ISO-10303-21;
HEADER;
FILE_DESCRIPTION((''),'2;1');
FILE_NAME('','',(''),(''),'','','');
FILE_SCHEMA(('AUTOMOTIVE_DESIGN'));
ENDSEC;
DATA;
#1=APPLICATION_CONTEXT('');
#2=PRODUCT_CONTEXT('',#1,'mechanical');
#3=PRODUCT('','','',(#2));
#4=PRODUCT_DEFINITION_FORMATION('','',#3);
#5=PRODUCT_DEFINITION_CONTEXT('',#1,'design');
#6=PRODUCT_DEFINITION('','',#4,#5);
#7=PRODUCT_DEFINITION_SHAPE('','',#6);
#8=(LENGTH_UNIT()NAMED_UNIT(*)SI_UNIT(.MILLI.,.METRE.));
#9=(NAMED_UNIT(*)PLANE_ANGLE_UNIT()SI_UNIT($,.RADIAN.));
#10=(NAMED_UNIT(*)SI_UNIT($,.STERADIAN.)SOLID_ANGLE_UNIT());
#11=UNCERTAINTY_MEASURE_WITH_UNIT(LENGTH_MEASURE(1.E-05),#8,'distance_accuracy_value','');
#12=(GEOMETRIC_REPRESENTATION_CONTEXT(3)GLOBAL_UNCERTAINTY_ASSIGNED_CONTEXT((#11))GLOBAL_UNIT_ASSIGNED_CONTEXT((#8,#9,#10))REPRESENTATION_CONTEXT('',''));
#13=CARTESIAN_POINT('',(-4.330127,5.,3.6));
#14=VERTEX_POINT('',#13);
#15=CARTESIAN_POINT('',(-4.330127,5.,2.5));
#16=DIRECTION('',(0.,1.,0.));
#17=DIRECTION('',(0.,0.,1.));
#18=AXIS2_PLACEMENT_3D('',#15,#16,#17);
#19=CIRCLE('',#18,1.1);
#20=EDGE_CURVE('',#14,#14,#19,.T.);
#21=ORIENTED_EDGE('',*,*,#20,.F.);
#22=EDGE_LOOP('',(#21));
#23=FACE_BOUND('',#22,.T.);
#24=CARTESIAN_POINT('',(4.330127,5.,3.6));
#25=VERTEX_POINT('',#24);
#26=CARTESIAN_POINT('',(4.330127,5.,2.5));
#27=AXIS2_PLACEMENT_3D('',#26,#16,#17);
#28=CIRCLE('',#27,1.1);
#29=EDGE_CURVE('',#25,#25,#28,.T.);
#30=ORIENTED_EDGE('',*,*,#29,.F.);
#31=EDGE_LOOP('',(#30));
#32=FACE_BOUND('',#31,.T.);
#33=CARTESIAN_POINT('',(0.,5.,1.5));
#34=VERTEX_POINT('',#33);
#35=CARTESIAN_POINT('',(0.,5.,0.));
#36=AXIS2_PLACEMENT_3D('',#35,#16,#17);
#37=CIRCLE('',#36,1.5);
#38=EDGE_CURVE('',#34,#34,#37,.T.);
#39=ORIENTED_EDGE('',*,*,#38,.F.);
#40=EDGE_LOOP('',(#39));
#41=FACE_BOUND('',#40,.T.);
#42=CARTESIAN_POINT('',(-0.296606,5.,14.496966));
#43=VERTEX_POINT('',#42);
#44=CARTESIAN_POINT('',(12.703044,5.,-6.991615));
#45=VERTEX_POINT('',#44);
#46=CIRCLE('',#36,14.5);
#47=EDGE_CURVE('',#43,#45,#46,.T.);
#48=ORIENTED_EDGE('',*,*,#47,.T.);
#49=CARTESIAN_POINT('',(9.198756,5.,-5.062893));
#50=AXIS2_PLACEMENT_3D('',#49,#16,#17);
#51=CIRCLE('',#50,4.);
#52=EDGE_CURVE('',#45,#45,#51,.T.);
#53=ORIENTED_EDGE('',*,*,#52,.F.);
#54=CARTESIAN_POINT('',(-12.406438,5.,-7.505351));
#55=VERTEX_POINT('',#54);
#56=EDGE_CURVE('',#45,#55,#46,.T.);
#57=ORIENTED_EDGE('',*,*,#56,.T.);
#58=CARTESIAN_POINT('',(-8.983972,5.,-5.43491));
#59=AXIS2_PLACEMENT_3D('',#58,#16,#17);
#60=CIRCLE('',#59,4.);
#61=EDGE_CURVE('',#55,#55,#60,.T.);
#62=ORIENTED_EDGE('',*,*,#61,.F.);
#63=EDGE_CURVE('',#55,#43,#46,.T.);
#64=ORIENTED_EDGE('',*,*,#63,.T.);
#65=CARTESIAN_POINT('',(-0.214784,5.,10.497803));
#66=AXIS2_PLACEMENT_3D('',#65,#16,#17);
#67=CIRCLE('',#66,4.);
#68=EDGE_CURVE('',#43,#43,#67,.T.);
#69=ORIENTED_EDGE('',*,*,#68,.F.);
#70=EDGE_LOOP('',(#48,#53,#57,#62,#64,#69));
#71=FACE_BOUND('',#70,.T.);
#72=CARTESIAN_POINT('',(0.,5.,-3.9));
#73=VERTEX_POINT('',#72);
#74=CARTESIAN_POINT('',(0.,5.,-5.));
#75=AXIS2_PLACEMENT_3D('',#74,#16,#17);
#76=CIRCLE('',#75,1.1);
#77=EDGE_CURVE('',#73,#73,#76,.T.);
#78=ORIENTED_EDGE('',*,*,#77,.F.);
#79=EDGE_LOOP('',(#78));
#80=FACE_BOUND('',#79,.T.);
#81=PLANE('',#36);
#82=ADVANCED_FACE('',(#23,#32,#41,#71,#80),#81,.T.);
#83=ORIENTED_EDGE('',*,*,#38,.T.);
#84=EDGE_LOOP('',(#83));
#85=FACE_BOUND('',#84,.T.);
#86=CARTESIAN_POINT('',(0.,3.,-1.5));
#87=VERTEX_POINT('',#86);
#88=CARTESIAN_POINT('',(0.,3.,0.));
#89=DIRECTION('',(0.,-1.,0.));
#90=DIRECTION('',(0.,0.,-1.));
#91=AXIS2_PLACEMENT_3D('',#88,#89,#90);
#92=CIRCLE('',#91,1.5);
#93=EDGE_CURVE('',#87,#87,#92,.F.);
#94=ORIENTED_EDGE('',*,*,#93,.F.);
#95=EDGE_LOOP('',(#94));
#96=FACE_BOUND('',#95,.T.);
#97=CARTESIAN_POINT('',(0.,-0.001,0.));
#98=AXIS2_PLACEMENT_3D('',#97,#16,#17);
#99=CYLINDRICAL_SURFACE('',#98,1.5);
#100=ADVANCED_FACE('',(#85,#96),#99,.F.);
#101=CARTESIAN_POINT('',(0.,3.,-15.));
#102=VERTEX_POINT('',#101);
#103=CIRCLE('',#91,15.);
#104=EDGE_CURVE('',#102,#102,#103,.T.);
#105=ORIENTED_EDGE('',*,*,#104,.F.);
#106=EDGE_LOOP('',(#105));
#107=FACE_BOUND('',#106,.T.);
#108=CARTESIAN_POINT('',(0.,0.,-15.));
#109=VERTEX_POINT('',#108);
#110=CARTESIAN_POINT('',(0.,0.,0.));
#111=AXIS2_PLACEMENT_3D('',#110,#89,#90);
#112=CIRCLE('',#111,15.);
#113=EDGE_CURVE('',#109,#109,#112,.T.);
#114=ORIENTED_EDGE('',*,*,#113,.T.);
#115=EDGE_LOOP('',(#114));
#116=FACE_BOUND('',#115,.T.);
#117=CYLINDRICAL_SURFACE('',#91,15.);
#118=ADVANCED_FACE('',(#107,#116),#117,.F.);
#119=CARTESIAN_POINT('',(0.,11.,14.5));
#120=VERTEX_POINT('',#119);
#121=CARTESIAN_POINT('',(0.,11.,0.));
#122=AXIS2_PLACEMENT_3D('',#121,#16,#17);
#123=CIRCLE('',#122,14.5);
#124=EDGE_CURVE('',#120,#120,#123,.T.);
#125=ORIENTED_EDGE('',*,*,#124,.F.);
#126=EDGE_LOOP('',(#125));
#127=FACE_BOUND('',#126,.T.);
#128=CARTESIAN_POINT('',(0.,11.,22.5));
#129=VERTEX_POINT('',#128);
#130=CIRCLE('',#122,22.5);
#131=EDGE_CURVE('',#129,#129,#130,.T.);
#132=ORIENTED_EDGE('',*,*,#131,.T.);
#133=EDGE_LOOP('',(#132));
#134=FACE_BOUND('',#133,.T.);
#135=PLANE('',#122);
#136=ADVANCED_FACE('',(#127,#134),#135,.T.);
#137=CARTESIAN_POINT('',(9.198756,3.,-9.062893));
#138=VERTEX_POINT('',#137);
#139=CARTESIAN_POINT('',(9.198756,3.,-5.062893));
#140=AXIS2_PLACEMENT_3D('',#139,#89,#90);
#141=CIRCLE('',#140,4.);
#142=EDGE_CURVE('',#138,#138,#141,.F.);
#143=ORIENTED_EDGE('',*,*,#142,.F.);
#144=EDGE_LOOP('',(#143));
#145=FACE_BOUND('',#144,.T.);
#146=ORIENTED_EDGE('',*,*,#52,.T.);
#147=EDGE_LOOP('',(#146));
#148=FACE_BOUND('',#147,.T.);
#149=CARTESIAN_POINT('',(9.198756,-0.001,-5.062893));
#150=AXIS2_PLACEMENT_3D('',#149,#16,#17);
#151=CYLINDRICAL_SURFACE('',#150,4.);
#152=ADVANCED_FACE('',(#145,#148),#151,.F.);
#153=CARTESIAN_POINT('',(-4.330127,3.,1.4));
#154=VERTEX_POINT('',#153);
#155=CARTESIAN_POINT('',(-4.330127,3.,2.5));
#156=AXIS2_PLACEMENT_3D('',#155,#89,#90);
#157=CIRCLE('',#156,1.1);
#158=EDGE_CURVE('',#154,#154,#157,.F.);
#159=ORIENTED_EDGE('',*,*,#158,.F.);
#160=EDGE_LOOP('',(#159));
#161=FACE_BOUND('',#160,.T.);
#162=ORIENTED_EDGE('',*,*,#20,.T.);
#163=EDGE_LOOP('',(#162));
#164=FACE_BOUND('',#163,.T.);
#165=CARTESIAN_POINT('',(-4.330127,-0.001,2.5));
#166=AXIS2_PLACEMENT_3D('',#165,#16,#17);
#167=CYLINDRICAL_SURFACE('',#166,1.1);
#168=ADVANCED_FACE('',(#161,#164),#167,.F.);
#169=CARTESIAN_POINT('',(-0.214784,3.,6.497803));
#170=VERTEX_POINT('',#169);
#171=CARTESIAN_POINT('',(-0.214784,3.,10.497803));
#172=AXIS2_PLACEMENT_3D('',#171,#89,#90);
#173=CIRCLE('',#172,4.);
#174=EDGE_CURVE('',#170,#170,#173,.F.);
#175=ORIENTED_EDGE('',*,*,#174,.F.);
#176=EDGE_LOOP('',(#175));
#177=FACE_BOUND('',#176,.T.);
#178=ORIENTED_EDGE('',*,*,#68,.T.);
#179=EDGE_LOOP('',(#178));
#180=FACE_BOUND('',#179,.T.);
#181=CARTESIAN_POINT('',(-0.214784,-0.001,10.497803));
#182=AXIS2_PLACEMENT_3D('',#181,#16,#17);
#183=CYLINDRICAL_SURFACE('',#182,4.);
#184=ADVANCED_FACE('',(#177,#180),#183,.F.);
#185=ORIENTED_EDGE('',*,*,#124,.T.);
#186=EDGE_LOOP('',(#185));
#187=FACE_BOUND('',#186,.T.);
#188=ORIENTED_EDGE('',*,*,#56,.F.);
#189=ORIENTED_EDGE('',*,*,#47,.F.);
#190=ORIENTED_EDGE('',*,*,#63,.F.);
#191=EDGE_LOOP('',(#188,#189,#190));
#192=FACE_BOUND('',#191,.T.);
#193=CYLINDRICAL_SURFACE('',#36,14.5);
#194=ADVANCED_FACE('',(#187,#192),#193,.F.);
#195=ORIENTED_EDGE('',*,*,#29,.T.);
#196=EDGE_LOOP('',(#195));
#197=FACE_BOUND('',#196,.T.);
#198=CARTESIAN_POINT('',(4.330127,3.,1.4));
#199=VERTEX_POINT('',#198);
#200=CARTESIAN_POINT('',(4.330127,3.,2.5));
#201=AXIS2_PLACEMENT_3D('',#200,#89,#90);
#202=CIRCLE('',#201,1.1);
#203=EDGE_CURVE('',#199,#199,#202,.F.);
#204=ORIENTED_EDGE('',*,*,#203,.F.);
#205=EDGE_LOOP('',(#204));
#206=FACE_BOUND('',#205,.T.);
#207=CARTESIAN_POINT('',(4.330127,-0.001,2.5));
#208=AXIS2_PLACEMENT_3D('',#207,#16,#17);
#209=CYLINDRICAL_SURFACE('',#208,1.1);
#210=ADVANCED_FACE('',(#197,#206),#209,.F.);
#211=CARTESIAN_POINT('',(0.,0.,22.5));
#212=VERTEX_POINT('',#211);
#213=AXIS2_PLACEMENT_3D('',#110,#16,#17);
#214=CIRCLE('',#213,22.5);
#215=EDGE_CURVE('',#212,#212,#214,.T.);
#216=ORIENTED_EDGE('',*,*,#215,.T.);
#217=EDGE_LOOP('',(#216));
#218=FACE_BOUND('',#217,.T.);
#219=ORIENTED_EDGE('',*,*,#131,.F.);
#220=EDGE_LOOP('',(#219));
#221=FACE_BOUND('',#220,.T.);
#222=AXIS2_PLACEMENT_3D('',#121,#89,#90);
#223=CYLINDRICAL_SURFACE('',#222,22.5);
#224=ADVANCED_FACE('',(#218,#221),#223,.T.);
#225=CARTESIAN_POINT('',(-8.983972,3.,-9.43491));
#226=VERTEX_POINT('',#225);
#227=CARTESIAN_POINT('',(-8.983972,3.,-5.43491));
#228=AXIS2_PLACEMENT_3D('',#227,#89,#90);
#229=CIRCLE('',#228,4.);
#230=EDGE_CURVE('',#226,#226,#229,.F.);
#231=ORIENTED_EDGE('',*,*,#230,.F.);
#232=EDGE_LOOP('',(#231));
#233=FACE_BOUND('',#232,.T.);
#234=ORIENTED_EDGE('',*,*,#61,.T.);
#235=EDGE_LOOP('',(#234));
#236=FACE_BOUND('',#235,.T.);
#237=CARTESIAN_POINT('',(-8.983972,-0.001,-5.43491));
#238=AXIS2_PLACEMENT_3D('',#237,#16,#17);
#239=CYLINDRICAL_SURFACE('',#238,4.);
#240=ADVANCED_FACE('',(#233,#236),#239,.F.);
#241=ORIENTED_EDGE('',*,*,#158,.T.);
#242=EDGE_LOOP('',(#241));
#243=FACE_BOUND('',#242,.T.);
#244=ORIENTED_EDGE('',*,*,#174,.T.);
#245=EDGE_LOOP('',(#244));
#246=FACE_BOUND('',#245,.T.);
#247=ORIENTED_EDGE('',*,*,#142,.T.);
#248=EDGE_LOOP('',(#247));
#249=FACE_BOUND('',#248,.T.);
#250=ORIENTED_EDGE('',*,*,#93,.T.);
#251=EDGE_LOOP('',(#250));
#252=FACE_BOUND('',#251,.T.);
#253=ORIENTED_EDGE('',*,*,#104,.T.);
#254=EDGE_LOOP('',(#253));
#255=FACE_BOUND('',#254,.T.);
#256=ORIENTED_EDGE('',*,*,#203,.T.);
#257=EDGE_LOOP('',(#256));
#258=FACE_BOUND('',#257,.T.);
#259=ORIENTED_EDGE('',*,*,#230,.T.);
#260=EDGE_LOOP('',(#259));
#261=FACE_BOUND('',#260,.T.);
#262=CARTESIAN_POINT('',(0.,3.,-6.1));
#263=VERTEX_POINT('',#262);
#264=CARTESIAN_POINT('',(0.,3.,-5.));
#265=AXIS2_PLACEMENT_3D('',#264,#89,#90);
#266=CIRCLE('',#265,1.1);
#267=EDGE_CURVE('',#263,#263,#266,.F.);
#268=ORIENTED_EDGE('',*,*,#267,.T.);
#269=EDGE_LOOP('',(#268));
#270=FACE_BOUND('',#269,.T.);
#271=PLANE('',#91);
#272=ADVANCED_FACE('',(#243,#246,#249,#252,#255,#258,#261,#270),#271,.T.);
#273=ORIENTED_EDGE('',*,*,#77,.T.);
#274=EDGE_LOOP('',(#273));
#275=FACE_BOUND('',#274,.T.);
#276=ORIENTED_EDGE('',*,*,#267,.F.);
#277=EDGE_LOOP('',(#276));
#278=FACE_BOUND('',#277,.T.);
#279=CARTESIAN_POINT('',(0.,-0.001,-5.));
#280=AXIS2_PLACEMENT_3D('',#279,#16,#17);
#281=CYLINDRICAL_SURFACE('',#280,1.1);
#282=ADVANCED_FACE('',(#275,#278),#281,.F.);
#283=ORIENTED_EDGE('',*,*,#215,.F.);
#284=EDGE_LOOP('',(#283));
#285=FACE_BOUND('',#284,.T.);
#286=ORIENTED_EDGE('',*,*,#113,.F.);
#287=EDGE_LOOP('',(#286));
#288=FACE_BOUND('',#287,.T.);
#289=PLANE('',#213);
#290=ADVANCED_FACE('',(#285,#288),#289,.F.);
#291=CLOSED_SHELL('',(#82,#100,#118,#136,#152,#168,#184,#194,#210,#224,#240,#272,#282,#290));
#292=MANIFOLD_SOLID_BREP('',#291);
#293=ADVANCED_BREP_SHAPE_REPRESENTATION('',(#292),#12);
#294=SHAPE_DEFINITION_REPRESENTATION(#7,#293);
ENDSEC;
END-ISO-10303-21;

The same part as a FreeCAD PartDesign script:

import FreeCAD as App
import Part
import Sketcher
from FreeCAD import Vector

doc = App.newDocument("Part")
params = doc.addObject("Spreadsheet::Sheet", "Params")
for row, (alias, value) in enumerate([
    ("sketch1_diameter", "45 mm"),
    ("pad1_length", "11 mm"),
    ("sketch2_diameter", "29 mm"),
    ("pocket1_length", "6 mm"),
    ("sketch3_diameter", "30 mm"),
    ("pocket2_length", "3 mm"),
    ("sketch4_diameter", "3 mm"),
    ("sketch5_diameter", "2.2 mm"),
    ("sketch6_diameter", "2.2 mm"),
    ("sketch7_diameter", "2.2 mm"),
    ("sketch8_diameter", "8 mm"),
    ("sketch9_diameter", "8 mm"),
    ("sketch10_diameter", "8 mm"),
], start=1):
    params.set(f"A{row}", alias)
    params.set(f"B{row}", "=" + value)
    params.setAlias(f"B{row}", alias)

body = doc.addObject("PartDesign::Body", "Body")

# Sketch on XZ plane
sketch1 = body.newObject("Sketcher::SketchObject", "Sketch")
sketch1.AttachmentSupport = (doc.getObject("XZ_Plane"), [""])
sketch1.MapMode = "FlatFace"
sketch1.addGeometry(Part.Circle(Vector(0, 0, 0), Vector(0, 0, 1), 22), False)
sketch1.addConstraint([
    Sketcher.Constraint("Coincident", 0, 3, -1, 1),
    Sketcher.Constraint("Diameter", 0, 45.0),
])
sketch1.setExpression("Constraints[1]", "Params.sketch1_diameter")
pad1 = body.newObject("PartDesign::Pad", "Pad")
pad1.Profile = sketch1
pad1.setExpression("Length", "Params.pad1_length")
pad1.Reversed = True

# Sketch on XZ plane
sketch2 = body.newObject("Sketcher::SketchObject", "Sketch001")
sketch2.AttachmentSupport = (doc.getObject("XZ_Plane"), [""])
sketch2.MapMode = "FlatFace"
sketch2.AttachmentOffset = App.Placement(Vector(0, 0, -11), App.Rotation())
sketch2.addGeometry(Part.Circle(Vector(0, 0, 0), Vector(0, 0, 1), 14), False)
sketch2.addConstraint([
    Sketcher.Constraint("Coincident", 0, 3, -1, 1),
    Sketcher.Constraint("Diameter", 0, 29.0),
])
sketch2.setExpression("Constraints[1]", "Params.sketch2_diameter")
pocket1 = body.newObject("PartDesign::Pocket", "Pocket")
pocket1.Profile = sketch2
pocket1.setExpression("Length", "Params.pocket1_length")
pocket1.Reversed = True

# Sketch on XZ plane
sketch3 = body.newObject("Sketcher::SketchObject", "Sketch002")
sketch3.AttachmentSupport = (doc.getObject("XZ_Plane"), [""])
sketch3.MapMode = "FlatFace"
sketch3.addGeometry(Part.Circle(Vector(0, 0, 0), Vector(0, 0, 1), 15), False)
sketch3.addConstraint([
    Sketcher.Constraint("Coincident", 0, 3, -1, 1),
    Sketcher.Constraint("Diameter", 0, 30.0),
])
sketch3.setExpression("Constraints[1]", "Params.sketch3_diameter")
pocket2 = body.newObject("PartDesign::Pocket", "Pocket001")
pocket2.Profile = sketch3
pocket2.setExpression("Length", "Params.pocket2_length")

# Sketch on XZ plane
sketch4 = body.newObject("Sketcher::SketchObject", "Sketch003")
sketch4.AttachmentSupport = (doc.getObject("XZ_Plane"), [""])
sketch4.MapMode = "FlatFace"
sketch4.AttachmentOffset = App.Placement(Vector(0, 0, -5), App.Rotation())
sketch4.addGeometry(Part.Circle(Vector(0, 0, 0), Vector(0, 0, 1), 1.5), False)
sketch4.addConstraint([
    Sketcher.Constraint("Coincident", 0, 3, -1, 1),
    Sketcher.Constraint("Diameter", 0, 3.0),
])
sketch4.setExpression("Constraints[1]", "Params.sketch4_diameter")
pocket3 = body.newObject("PartDesign::Pocket", "Pocket002")
pocket3.Profile = sketch4
pocket3.Type = "UpToFirst"
pocket3.Reversed = True

# Sketch on XZ plane
sketch5 = body.newObject("Sketcher::SketchObject", "Sketch004")
sketch5.AttachmentSupport = (doc.getObject("XZ_Plane"), [""])
sketch5.MapMode = "FlatFace"
sketch5.AttachmentOffset = App.Placement(Vector(0, 0, -5), App.Rotation())
sketch5.addGeometry(Part.Circle(Vector(0, -5, 0), Vector(0, 0, 1), 1.1), False)
sketch5.addConstraint([
    Sketcher.Constraint("PointOnObject", 0, 3, -2),
    Sketcher.Constraint("Diameter", 0, 2.2),
    Sketcher.Constraint("DistanceY", 0, 3, -1, 1, 5.0),
])
sketch5.setExpression("Constraints[1]", "Params.sketch5_diameter")
pocket4 = body.newObject("PartDesign::Pocket", "Pocket003")
pocket4.Profile = sketch5
pocket4.Type = "UpToFirst"
pocket4.Reversed = True

# Sketch on XZ plane
sketch6 = body.newObject("Sketcher::SketchObject", "Sketch005")
sketch6.AttachmentSupport = (doc.getObject("XZ_Plane"), [""])
sketch6.MapMode = "FlatFace"
sketch6.AttachmentOffset = App.Placement(Vector(0, 0, -5), App.Rotation())
sketch6.addGeometry(Part.Circle(Vector(4.3, 2.5, 0), Vector(0, 0, 1), 1.1), False)
sketch6.addConstraint([
    Sketcher.Constraint("Diameter", 0, 2.2),
    Sketcher.Constraint("DistanceY", -1, 1, 0, 3, 2.5),
    Sketcher.Constraint("DistanceX", -1, 1, 0, 3, 4.330127),
])
sketch6.setExpression("Constraints[0]", "Params.sketch6_diameter")
pocket5 = body.newObject("PartDesign::Pocket", "Pocket004")
pocket5.Profile = sketch6
pocket5.Type = "UpToFirst"
pocket5.Reversed = True

# Sketch on XZ plane
sketch7 = body.newObject("Sketcher::SketchObject", "Sketch006")
sketch7.AttachmentSupport = (doc.getObject("XZ_Plane"), [""])
sketch7.MapMode = "FlatFace"
sketch7.AttachmentOffset = App.Placement(Vector(0, 0, -5), App.Rotation())
sketch7.addGeometry(Part.Circle(Vector(-4.3, 2.5, 0), Vector(0, 0, 1), 1.1), False)
sketch7.addConstraint([
    Sketcher.Constraint("Diameter", 0, 2.2),
    Sketcher.Constraint("DistanceY", -1, 1, 0, 3, 2.5),
    Sketcher.Constraint("DistanceX", 0, 3, -1, 1, 4.330127),
])
sketch7.setExpression("Constraints[0]", "Params.sketch7_diameter")
pocket6 = body.newObject("PartDesign::Pocket", "Pocket005")
pocket6.Profile = sketch7
pocket6.Type = "UpToFirst"
pocket6.Reversed = True

# Sketch on XZ plane
sketch8 = body.newObject("Sketcher::SketchObject", "Sketch007")
sketch8.AttachmentSupport = (doc.getObject("XZ_Plane"), [""])
sketch8.MapMode = "FlatFace"
sketch8.AttachmentOffset = App.Placement(Vector(0, 0, -5), App.Rotation())
sketch8.addGeometry(Part.Circle(Vector(9.2, -5.1, 0), Vector(0, 0, 1), 4), False)
sketch8.addConstraint([
    Sketcher.Constraint("Diameter", 0, 8.0),
    Sketcher.Constraint("DistanceX", -1, 1, 0, 3, 9.198756),
    Sketcher.Constraint("DistanceY", 0, 3, -1, 1, 5.062893),
])
sketch8.setExpression("Constraints[0]", "Params.sketch8_diameter")
pocket7 = body.newObject("PartDesign::Pocket", "Pocket006")
pocket7.Profile = sketch8
pocket7.Type = "UpToFirst"
pocket7.Reversed = True

# Sketch on XZ plane
sketch9 = body.newObject("Sketcher::SketchObject", "Sketch008")
sketch9.AttachmentSupport = (doc.getObject("XZ_Plane"), [""])
sketch9.MapMode = "FlatFace"
sketch9.AttachmentOffset = App.Placement(Vector(0, 0, -5), App.Rotation())
sketch9.addGeometry(Part.Circle(Vector(-0.2, 10.5, 0), Vector(0, 0, 1), 4), False)
sketch9.addConstraint([
    Sketcher.Constraint("Diameter", 0, 8.0),
    Sketcher.Constraint("DistanceX", 0, 3, -1, 1, 0.214784),
    Sketcher.Constraint("DistanceY", -1, 1, 0, 3, 10.497803),
])
sketch9.setExpression("Constraints[0]", "Params.sketch9_diameter")
pocket8 = body.newObject("PartDesign::Pocket", "Pocket007")
pocket8.Profile = sketch9
pocket8.Type = "UpToFirst"
pocket8.Reversed = True

# Sketch on XZ plane
sketch10 = body.newObject("Sketcher::SketchObject", "Sketch009")
sketch10.AttachmentSupport = (doc.getObject("XZ_Plane"), [""])
sketch10.MapMode = "FlatFace"
sketch10.AttachmentOffset = App.Placement(Vector(0, 0, -5), App.Rotation())
sketch10.addGeometry(Part.Circle(Vector(-9, -5.4, 0), Vector(0, 0, 1), 4), False)
sketch10.addConstraint([
    Sketcher.Constraint("Diameter", 0, 8.0),
    Sketcher.Constraint("DistanceY", 0, 3, -1, 1, 5.43491),
    Sketcher.Constraint("DistanceX", 0, 3, -1, 1, 8.983972),
])
sketch10.setExpression("Constraints[0]", "Params.sketch10_diameter")
pocket9 = body.newObject("PartDesign::Pocket", "Pocket008")
pocket9.Profile = sketch10
pocket9.Type = "UpToFirst"
pocket9.Reversed = True

doc.recompute()
